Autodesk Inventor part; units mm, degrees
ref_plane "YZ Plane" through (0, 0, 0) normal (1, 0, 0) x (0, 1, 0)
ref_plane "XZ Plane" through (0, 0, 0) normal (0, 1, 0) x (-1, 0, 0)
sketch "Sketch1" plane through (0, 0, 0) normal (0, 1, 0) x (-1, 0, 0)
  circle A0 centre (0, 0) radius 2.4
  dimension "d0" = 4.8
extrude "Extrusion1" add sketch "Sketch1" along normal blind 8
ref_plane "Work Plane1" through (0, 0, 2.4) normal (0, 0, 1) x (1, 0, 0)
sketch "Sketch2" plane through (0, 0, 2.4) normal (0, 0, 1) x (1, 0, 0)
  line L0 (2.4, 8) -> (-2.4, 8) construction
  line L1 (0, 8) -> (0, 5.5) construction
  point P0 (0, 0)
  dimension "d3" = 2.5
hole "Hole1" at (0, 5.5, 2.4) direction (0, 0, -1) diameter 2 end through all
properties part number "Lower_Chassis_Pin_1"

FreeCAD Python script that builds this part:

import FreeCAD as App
import Part
import Sketcher
from FreeCAD import Vector
Q = App.Units.Quantity

doc = App.newDocument("Part")
body = doc.addObject("PartDesign::Body", "Body")

sketch1 = body.newObject("Sketcher::SketchObject", "Sketch")
sketch1.AttachmentSupport = (doc.getObject("XZ_Plane"), [""])
sketch1.MapMode = "FlatFace"
sketch1.addGeometry(Part.Circle(Vector(0, 0, 0), Vector(0, 0, 1), 2.4), False)
sketch1.addConstraint([
    Sketcher.Constraint("Coincident", 0, 3, -1, 1),
    Sketcher.Constraint("Diameter", 0, Q("4.8 mm")),
])
pad1 = body.newObject("PartDesign::Pad", "Pad")
pad1.Profile = sketch1
pad1.Length = 8
pad1.Reversed = True

sketch2 = body.newObject("Sketcher::SketchObject", "Sketch001")
sketch2.AttachmentSupport = (doc.getObject("XY_Plane"), [""])
sketch2.MapMode = "FlatFace"
sketch2.AttachmentOffset = App.Placement(Vector(0, 0, 2.4), App.Rotation())
sketch2.addGeometry(Part.Circle(Vector(0, 5.5, 0), Vector(0, 0, 1), 1), False)
sketch2.addConstraint([
    Sketcher.Constraint("PointOnObject", 0, 3, -2),
    Sketcher.Constraint("Diameter", 0, Q("2 mm")),
    Sketcher.Constraint("DistanceY", -1, 1, 0, 3, Q("5.5 mm")),
])
doc.recompute()
hole = body.newObject("PartDesign::Hole", "Hole")
hole.Profile = sketch2
hole.ThreadType = "None"
hole.Diameter = 2
hole.DepthType = "ThroughAll"

doc.recompute()
